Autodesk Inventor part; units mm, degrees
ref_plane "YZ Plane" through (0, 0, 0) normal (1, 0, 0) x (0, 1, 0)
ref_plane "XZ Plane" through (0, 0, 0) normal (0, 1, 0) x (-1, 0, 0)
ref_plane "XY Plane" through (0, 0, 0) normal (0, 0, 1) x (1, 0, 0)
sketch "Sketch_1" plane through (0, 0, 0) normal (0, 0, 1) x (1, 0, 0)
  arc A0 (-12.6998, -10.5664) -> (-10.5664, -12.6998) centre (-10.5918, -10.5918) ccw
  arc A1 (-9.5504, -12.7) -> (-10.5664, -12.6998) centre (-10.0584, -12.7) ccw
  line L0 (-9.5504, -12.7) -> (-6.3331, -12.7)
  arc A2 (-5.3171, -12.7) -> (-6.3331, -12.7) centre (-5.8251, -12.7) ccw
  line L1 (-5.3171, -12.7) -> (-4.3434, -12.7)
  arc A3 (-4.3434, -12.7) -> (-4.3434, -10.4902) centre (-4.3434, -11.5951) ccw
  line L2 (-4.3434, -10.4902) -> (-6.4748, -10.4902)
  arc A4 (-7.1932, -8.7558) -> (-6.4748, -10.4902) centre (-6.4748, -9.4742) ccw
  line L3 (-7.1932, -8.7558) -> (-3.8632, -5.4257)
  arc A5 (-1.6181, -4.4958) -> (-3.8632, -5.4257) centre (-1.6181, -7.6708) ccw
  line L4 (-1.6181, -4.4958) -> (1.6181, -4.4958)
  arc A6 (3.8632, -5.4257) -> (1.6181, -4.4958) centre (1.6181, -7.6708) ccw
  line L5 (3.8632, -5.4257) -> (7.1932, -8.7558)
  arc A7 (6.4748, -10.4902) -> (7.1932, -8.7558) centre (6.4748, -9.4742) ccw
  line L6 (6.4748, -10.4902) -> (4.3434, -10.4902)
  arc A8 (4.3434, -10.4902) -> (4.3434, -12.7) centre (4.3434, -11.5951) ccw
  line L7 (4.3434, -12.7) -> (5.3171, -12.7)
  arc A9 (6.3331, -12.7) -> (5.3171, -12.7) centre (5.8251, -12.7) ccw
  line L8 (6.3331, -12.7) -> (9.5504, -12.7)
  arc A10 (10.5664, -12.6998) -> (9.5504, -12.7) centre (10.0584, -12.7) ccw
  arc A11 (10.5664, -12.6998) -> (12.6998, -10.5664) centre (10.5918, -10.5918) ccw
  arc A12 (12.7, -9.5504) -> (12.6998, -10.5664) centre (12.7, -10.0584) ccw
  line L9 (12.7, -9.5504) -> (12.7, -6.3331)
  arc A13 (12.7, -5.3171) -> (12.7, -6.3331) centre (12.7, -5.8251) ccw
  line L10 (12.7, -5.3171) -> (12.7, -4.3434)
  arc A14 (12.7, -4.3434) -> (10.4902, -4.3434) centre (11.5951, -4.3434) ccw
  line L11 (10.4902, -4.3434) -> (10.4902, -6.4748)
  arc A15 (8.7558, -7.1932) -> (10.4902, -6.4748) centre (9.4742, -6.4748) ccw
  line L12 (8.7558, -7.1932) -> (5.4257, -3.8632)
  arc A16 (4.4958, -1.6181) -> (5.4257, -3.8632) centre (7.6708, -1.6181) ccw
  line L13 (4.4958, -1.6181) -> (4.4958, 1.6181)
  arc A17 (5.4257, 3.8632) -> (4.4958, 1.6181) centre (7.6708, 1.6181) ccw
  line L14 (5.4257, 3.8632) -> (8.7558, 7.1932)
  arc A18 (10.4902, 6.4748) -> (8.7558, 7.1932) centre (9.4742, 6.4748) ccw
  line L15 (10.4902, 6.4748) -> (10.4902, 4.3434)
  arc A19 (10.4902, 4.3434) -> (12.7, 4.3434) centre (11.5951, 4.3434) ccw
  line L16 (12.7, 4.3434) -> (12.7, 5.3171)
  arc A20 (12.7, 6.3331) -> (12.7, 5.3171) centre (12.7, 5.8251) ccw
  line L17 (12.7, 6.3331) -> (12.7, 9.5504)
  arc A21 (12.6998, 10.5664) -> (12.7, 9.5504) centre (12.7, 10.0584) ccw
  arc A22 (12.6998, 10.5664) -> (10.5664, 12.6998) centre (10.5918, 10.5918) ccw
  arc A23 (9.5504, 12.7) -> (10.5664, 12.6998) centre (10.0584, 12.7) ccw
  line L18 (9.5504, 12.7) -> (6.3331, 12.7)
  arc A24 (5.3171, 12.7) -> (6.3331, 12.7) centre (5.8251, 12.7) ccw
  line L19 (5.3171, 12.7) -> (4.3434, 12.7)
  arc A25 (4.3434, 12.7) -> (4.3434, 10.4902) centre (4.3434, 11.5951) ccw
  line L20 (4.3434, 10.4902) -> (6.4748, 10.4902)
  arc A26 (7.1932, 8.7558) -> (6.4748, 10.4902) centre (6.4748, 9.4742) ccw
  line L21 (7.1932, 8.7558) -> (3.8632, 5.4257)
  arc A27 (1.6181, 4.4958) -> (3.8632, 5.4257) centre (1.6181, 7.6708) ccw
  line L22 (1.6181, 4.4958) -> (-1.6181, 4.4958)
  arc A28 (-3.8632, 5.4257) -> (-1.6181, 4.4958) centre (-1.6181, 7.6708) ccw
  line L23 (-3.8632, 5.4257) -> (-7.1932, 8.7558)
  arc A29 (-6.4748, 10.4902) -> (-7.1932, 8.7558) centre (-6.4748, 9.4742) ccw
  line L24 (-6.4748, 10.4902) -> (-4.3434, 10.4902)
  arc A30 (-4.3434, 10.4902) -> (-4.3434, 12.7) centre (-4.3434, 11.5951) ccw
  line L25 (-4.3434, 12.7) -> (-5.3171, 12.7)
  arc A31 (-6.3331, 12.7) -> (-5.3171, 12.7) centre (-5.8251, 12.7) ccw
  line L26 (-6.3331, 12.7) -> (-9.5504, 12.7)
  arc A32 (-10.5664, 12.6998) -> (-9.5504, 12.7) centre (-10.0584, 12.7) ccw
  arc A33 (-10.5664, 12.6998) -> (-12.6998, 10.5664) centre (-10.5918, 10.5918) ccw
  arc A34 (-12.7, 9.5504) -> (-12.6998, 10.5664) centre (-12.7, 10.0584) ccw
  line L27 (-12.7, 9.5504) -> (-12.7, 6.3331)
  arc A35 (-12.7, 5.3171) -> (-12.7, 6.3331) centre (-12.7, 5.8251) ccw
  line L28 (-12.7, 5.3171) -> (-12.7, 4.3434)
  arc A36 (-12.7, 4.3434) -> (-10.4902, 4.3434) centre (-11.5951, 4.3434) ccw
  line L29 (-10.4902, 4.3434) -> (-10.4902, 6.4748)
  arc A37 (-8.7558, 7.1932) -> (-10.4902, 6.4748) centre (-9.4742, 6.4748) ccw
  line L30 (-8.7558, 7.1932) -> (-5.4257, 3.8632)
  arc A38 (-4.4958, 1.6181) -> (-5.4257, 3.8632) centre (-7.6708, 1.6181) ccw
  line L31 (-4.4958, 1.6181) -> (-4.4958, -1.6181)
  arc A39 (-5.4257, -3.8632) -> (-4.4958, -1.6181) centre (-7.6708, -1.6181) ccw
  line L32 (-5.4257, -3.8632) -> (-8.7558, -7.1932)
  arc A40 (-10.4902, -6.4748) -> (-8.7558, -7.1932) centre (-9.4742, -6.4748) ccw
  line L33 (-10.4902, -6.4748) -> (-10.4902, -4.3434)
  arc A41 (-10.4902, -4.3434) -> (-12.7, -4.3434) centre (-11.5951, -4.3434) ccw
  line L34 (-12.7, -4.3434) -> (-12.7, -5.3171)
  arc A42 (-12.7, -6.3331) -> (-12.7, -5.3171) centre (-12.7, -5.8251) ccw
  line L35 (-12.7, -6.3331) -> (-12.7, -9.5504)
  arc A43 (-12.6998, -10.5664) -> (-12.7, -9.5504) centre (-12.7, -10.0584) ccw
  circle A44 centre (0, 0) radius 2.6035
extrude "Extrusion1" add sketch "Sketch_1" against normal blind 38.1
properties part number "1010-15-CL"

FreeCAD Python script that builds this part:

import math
import FreeCAD as App
import Part
import Sketcher
Q = App.Units.Quantity

doc = App.newDocument("Part")
body = doc.addObject("PartDesign::Body", "Body")

sketch1 = body.newObject("Sketcher::SketchObject", "Sketch")
sketch1.AttachmentSupport = (doc.getObject("XY_Plane"), [""])
sketch1.MapMode = "FlatFace"
sketch1.addGeometry([
    Part.ArcOfCircle(Part.Circle(App.Vector(-12.7, -10.1, 0), App.Vector(0, 0, 1), 0.5), math.radians(-90), math.radians(90)),
    Part.ArcOfCircle(Part.Circle(App.Vector(-10.6, -10.6, 0), App.Vector(0, 0, 1), 2.1), math.radians(179), math.radians(271)),
    Part.ArcOfCircle(Part.Circle(App.Vector(-10.1, -12.7, 0), App.Vector(0, 0, 1), 0.5), math.radians(0), math.radians(180)),
    Part.LineSegment(App.Vector(-9.6, -12.7, 0), App.Vector(-6.3, -12.7, 0)),
    Part.ArcOfCircle(Part.Circle(App.Vector(-5.8, -12.7, 0), App.Vector(0, 0, 1), 0.5), math.radians(0), math.radians(180)),
    Part.LineSegment(App.Vector(-5.3, -12.7, 0), App.Vector(-4.3, -12.7, 0)),
    Part.ArcOfCircle(Part.Circle(App.Vector(-4.3, -11.6, 0), App.Vector(0, 0, 1), 1.1), math.radians(-90), math.radians(90)),
    Part.LineSegment(App.Vector(-4.3, -10.5, 0), App.Vector(-6.5, -10.5, 0)),
    Part.ArcOfCircle(Part.Circle(App.Vector(-6.5, -9.5, 0), App.Vector(0, 0, 1), 1), math.radians(135), math.radians(270)),
    Part.LineSegment(App.Vector(-7.2, -8.8, 0), App.Vector(-3.9, -5.4, 0)),
    Part.ArcOfCircle(Part.Circle(App.Vector(-1.6, -7.7, 0), App.Vector(0, 0, 1), 3.2), math.radians(90), math.radians(135)),
    Part.LineSegment(App.Vector(-1.6, -4.5, 0), App.Vector(1.6, -4.5, 0)),
    Part.ArcOfCircle(Part.Circle(App.Vector(1.6, -7.7, 0), App.Vector(0, 0, 1), 3.2), math.radians(45), math.radians(90)),
    Part.LineSegment(App.Vector(3.9, -5.4, 0), App.Vector(7.2, -8.8, 0)),
    Part.ArcOfCircle(Part.Circle(App.Vector(6.5, -9.5, 0), App.Vector(0, 0, 1), 1), math.radians(-90), math.radians(45)),
    Part.LineSegment(App.Vector(6.5, -10.5, 0), App.Vector(4.3, -10.5, 0)),
    Part.ArcOfCircle(Part.Circle(App.Vector(4.3, -11.6, 0), App.Vector(0, 0, 1), 1.1), math.radians(90), math.radians(270)),
    Part.LineSegment(App.Vector(4.3, -12.7, 0), App.Vector(5.3, -12.7, 0)),
    Part.ArcOfCircle(Part.Circle(App.Vector(5.8, -12.7, 0), App.Vector(0, 0, 1), 0.5), math.radians(0), math.radians(180)),
    Part.LineSegment(App.Vector(6.3, -12.7, 0), App.Vector(9.6, -12.7, 0)),
    Part.ArcOfCircle(Part.Circle(App.Vector(10.1, -12.7, 0), App.Vector(0, 0, 1), 0.5), math.radians(0), math.radians(180)),
    Part.ArcOfCircle(Part.Circle(App.Vector(10.6, -10.6, 0), App.Vector(0, 0, 1), 2.1), math.radians(-91), math.radians(1)),
    Part.ArcOfCircle(Part.Circle(App.Vector(12.7, -10.1, 0), App.Vector(0, 0, 1), 0.5), math.radians(90), math.radians(270)),
    Part.LineSegment(App.Vector(12.7, -9.6, 0), App.Vector(12.7, -6.3, 0)),
    Part.ArcOfCircle(Part.Circle(App.Vector(12.7, -5.8, 0), App.Vector(0, 0, 1), 0.5), math.radians(90), math.radians(270)),
    Part.LineSegment(App.Vector(12.7, -5.3, 0), App.Vector(12.7, -4.3, 0)),
    Part.ArcOfCircle(Part.Circle(App.Vector(11.6, -4.3, 0), App.Vector(0, 0, 1), 1.1), math.radians(0), math.radians(180)),
    Part.LineSegment(App.Vector(10.5, -4.3, 0), App.Vector(10.5, -6.5, 0)),
    Part.ArcOfCircle(Part.Circle(App.Vector(9.5, -6.5, 0), App.Vector(0, 0, 1), 1), math.radians(-135), math.radians(0)),
    Part.LineSegment(App.Vector(8.8, -7.2, 0), App.Vector(5.4, -3.9, 0)),
    Part.ArcOfCircle(Part.Circle(App.Vector(7.7, -1.6, 0), App.Vector(0, 0, 1), 3.2), math.radians(180), math.radians(225)),
    Part.LineSegment(App.Vector(4.5, -1.6, 0), App.Vector(4.5, 1.6, 0)),
    Part.ArcOfCircle(Part.Circle(App.Vector(7.7, 1.6, 0), App.Vector(0, 0, 1), 3.2), math.radians(135), math.radians(180)),
    Part.LineSegment(App.Vector(5.4, 3.9, 0), App.Vector(8.8, 7.2, 0)),
    Part.ArcOfCircle(Part.Circle(App.Vector(9.5, 6.5, 0), App.Vector(0, 0, 1), 1), math.radians(0), math.radians(135)),
    Part.LineSegment(App.Vector(10.5, 6.5, 0), App.Vector(10.5, 4.3, 0)),
    Part.ArcOfCircle(Part.Circle(App.Vector(11.6, 4.3, 0), App.Vector(0, 0, 1), 1.1), math.radians(180), math.radians(360)),
    Part.LineSegment(App.Vector(12.7, 4.3, 0), App.Vector(12.7, 5.3, 0)),
    Part.ArcOfCircle(Part.Circle(App.Vector(12.7, 5.8, 0), App.Vector(0, 0, 1), 0.5), math.radians(90), math.radians(270)),
    Part.LineSegment(App.Vector(12.7, 6.3, 0), App.Vector(12.7, 9.6, 0)),
    Part.ArcOfCircle(Part.Circle(App.Vector(12.7, 10.1, 0), App.Vector(0, 0, 1), 0.5), math.radians(90), math.radians(270)),
    Part.ArcOfCircle(Part.Circle(App.Vector(10.6, 10.6, 0), App.Vector(0, 0, 1), 2.1), math.radians(-1), math.radians(91)),
    Part.ArcOfCircle(Part.Circle(App.Vector(10.1, 12.7, 0), App.Vector(0, 0, 1), 0.5), math.radians(180), math.radians(360)),
    Part.LineSegment(App.Vector(9.6, 12.7, 0), App.Vector(6.3, 12.7, 0)),
    Part.ArcOfCircle(Part.Circle(App.Vector(5.8, 12.7, 0), App.Vector(0, 0, 1), 0.5), math.radians(180), math.radians(360)),
    Part.LineSegment(App.Vector(5.3, 12.7, 0), App.Vector(4.3, 12.7, 0)),
    Part.ArcOfCircle(Part.Circle(App.Vector(4.3, 11.6, 0), App.Vector(0, 0, 1), 1.1), math.radians(90), math.radians(270)),
    Part.LineSegment(App.Vector(4.3, 10.5, 0), App.Vector(6.5, 10.5, 0)),
    Part.ArcOfCircle(Part.Circle(App.Vector(6.5, 9.5, 0), App.Vector(0, 0, 1), 1), math.radians(-45), math.radians(90)),
    Part.LineSegment(App.Vector(7.2, 8.8, 0), App.Vector(3.9, 5.4, 0)),
    Part.ArcOfCircle(Part.Circle(App.Vector(1.6, 7.7, 0), App.Vector(0, 0, 1), 3.2), math.radians(-90), math.radians(-45)),
    Part.LineSegment(App.Vector(1.6, 4.5, 0), App.Vector(-1.6, 4.5, 0)),
    Part.ArcOfCircle(Part.Circle(App.Vector(-1.6, 7.7, 0), App.Vector(0, 0, 1), 3.2), math.radians(-135), math.radians(-90)),
    Part.LineSegment(App.Vector(-3.9, 5.4, 0), App.Vector(-7.2, 8.8, 0)),
    Part.ArcOfCircle(Part.Circle(App.Vector(-6.5, 9.5, 0), App.Vector(0, 0, 1), 1), math.radians(90), math.radians(225)),
    Part.LineSegment(App.Vector(-6.5, 10.5, 0), App.Vector(-4.3, 10.5, 0)),
    Part.ArcOfCircle(Part.Circle(App.Vector(-4.3, 11.6, 0), App.Vector(0, 0, 1), 1.1), math.radians(-90), math.radians(90)),
    Part.LineSegment(App.Vector(-4.3, 12.7, 0), App.Vector(-5.3, 12.7, 0)),
    Part.ArcOfCircle(Part.Circle(App.Vector(-5.8, 12.7, 0), App.Vector(0, 0, 1), 0.5), math.radians(180), math.radians(360)),
    Part.LineSegment(App.Vector(-6.3, 12.7, 0), App.Vector(-9.6, 12.7, 0)),
    Part.ArcOfCircle(Part.Circle(App.Vector(-10.1, 12.7, 0), App.Vector(0, 0, 1), 0.5), math.radians(-180), math.radians(0)),
    Part.ArcOfCircle(Part.Circle(App.Vector(-10.6, 10.6, 0), App.Vector(0, 0, 1), 2.1), math.radians(89), math.radians(181)),
    Part.ArcOfCircle(Part.Circle(App.Vector(-12.7, 10.1, 0), App.Vector(0, 0, 1), 0.5), math.radians(-90), math.radians(90)),
    Part.LineSegment(App.Vector(-12.7, 9.6, 0), App.Vector(-12.7, 6.3, 0)),
    Part.ArcOfCircle(Part.Circle(App.Vector(-12.7, 5.8, 0), App.Vector(0, 0, 1), 0.5), math.radians(-90), math.radians(90)),
    Part.LineSegment(App.Vector(-12.7, 5.3, 0), App.Vector(-12.7, 4.3, 0)),
    Part.ArcOfCircle(Part.Circle(App.Vector(-11.6, 4.3, 0), App.Vector(0, 0, 1), 1.1), math.radians(180), math.radians(360)),
    Part.LineSegment(App.Vector(-10.5, 4.3, 0), App.Vector(-10.5, 6.5, 0)),
    Part.ArcOfCircle(Part.Circle(App.Vector(-9.5, 6.5, 0), App.Vector(0, 0, 1), 1), math.radians(45), math.radians(180)),
    Part.LineSegment(App.Vector(-8.8, 7.2, 0), App.Vector(-5.4, 3.9, 0)),
    Part.ArcOfCircle(Part.Circle(App.Vector(-7.7, 1.6, 0), App.Vector(0, 0, 1), 3.2), math.radians(0), math.radians(45)),
    Part.LineSegment(App.Vector(-4.5, 1.6, 0), App.Vector(-4.5, -1.6, 0)),
    Part.ArcOfCircle(Part.Circle(App.Vector(-7.7, -1.6, 0), App.Vector(0, 0, 1), 3.2), math.radians(-45), math.radians(0)),
    Part.LineSegment(App.Vector(-5.4, -3.9, 0), App.Vector(-8.8, -7.2, 0)),
    Part.ArcOfCircle(Part.Circle(App.Vector(-9.5, -6.5, 0), App.Vector(0, 0, 1), 1), math.radians(180), math.radians(315)),
    Part.LineSegment(App.Vector(-10.5, -6.5, 0), App.Vector(-10.5, -4.3, 0)),
    Part.ArcOfCircle(Part.Circle(App.Vector(-11.6, -4.3, 0), App.Vector(0, 0, 1), 1.1), math.radians(0), math.radians(180)),
    Part.LineSegment(App.Vector(-12.7, -4.3, 0), App.Vector(-12.7, -5.3, 0)),
    Part.ArcOfCircle(Part.Circle(App.Vector(-12.7, -5.8, 0), App.Vector(0, 0, 1), 0.5), math.radians(-90), math.radians(90)),
    Part.LineSegment(App.Vector(-12.7, -6.3, 0), App.Vector(-12.7, -9.6, 0)),
    Part.Circle(App.Vector(0, 0, 0), App.Vector(0, 0, 1), 2.6),
], False)
sketch1.addConstraint([
    Sketcher.Constraint("Coincident", 0, 1, 1, 1),
    Sketcher.Constraint("Coincident", 1, 2, 2, 2),
    Sketcher.Constraint("Coincident", 2, 1, 3, 1),
    Sketcher.Constraint("Coincident", 3, 2, 4, 2),
    Sketcher.Constraint("Coincident", 4, 1, 5, 1),
    Sketcher.Constraint("Tangent", 5, 2, 6, 1),
    Sketcher.Constraint("Tangent", 6, 2, 7, 1),
    Sketcher.Constraint("Tangent", 7, 2, 8, 2),
    Sketcher.Constraint("Tangent", 8, 1, 9, 1),
    Sketcher.Constraint("Tangent", 9, 2, 10, 2),
    Sketcher.Constraint("Tangent", 10, 1, 11, 1),
    Sketcher.Constraint("Tangent", 11, 2, 12, 2),
    Sketcher.Constraint("Tangent", 12, 1, 13, 1),
    Sketcher.Constraint("Tangent", 13, 2, 14, 2),
    Sketcher.Constraint("Tangent", 14, 1, 15, 1),
    Sketcher.Constraint("Tangent", 15, 2, 16, 1),
    Sketcher.Constraint("Tangent", 16, 2, 17, 1),
    Sketcher.Constraint("Coincident", 17, 2, 18, 2),
    Sketcher.Constraint("Coincident", 18, 1, 19, 1),
    Sketcher.Constraint("Coincident", 19, 2, 20, 2),
    Sketcher.Constraint("Coincident", 20, 1, 21, 1),
    Sketcher.Constraint("Coincident", 21, 2, 22, 2),
    Sketcher.Constraint("Coincident", 22, 1, 23, 1),
    Sketcher.Constraint("Coincident", 23, 2, 24, 2),
    Sketcher.Constraint("Coincident", 24, 1, 25, 1),
    Sketcher.Constraint("Tangent", 25, 2, 26, 1),
    Sketcher.Constraint("Tangent", 26, 2, 27, 1),
    Sketcher.Constraint("Tangent", 27, 2, 28, 2),
    Sketcher.Constraint("Tangent", 28, 1, 29, 1),
    Sketcher.Constraint("Tangent", 29, 2, 30, 2),
    Sketcher.Constraint("Tangent", 30, 1, 31, 1),
    Sketcher.Constraint("Tangent", 31, 2, 32, 2),
    Sketcher.Constraint("Tangent", 32, 1, 33, 1),
    Sketcher.Constraint("Tangent", 33, 2, 34, 2),
    Sketcher.Constraint("Tangent", 34, 1, 35, 1),
    Sketcher.Constraint("Tangent", 35, 2, 36, 1),
    Sketcher.Constraint("Tangent", 36, 2, 37, 1),
    Sketcher.Constraint("Coincident", 37, 2, 38, 2),
    Sketcher.Constraint("Coincident", 38, 1, 39, 1),
    Sketcher.Constraint("Coincident", 39, 2, 40, 2),
    Sketcher.Constraint("Coincident", 40, 1, 41, 1),
    Sketcher.Constraint("Coincident", 41, 2, 42, 2),
    Sketcher.Constraint("Coincident", 42, 1, 43, 1),
    Sketcher.Constraint("Coincident", 43, 2, 44, 2),
    Sketcher.Constraint("Coincident", 44, 1, 45, 1),
    Sketcher.Constraint("Tangent", 45, 2, 46, 1),
    Sketcher.Constraint("Tangent", 46, 2, 47, 1),
    Sketcher.Constraint("Tangent", 47, 2, 48, 2),
    Sketcher.Constraint("Tangent", 48, 1, 49, 1),
    Sketcher.Constraint("Tangent", 49, 2, 50, 2),
    Sketcher.Constraint("Tangent", 50, 1, 51, 1),
    Sketcher.Constraint("Tangent", 51, 2, 52, 2),
    Sketcher.Constraint("Tangent", 52, 1, 53, 1),
    Sketcher.Constraint("Tangent", 53, 2, 54, 2),
    Sketcher.Constraint("Tangent", 54, 1, 55, 1),
    Sketcher.Constraint("Tangent", 55, 2, 56, 1),
    Sketcher.Constraint("Tangent", 56, 2, 57, 1),
    Sketcher.Constraint("Coincident", 57, 2, 58, 2),
    Sketcher.Constraint("Coincident", 58, 1, 59, 1),
    Sketcher.Constraint("Coincident", 59, 2, 60, 2),
    Sketcher.Constraint("Coincident", 60, 1, 61, 1),
    Sketcher.Constraint("Coincident", 61, 2, 62, 2),
    Sketcher.Constraint("Coincident", 62, 1, 63, 1),
    Sketcher.Constraint("Coincident", 63, 2, 64, 2),
    Sketcher.Constraint("Coincident", 64, 1, 65, 1),
    Sketcher.Constraint("Tangent", 65, 2, 66, 1),
    Sketcher.Constraint("Tangent", 66, 2, 67, 1),
    Sketcher.Constraint("Tangent", 67, 2, 68, 2),
    Sketcher.Constraint("Tangent", 68, 1, 69, 1),
    Sketcher.Constraint("Tangent", 69, 2, 70, 2),
    Sketcher.Constraint("Tangent", 70, 1, 71, 1),
    Sketcher.Constraint("Tangent", 71, 2, 72, 2),
    Sketcher.Constraint("Tangent", 72, 1, 73, 1),
    Sketcher.Constraint("Tangent", 73, 2, 74, 2),
    Sketcher.Constraint("Tangent", 74, 1, 75, 1),
    Sketcher.Constraint("Tangent", 75, 2, 76, 1),
    Sketcher.Constraint("Tangent", 76, 2, 77, 1),
    Sketcher.Constraint("Coincident", 77, 2, 78, 2),
    Sketcher.Constraint("Coincident", 78, 1, 79, 1),
    Sketcher.Constraint("Coincident", 79, 2, 0, 2),
    Sketcher.Constraint("Horizontal", 3),
    Sketcher.Constraint("Horizontal", 5),
    Sketcher.Constraint("Horizontal", 7),
    Sketcher.Constraint("Horizontal", 11),
    Sketcher.Constraint("Horizontal", 15),
    Sketcher.Constraint("Horizontal", 17),
    Sketcher.Constraint("Horizontal", 19),
    Sketcher.Constraint("Vertical", 23),
    Sketcher.Constraint("Vertical", 25),
    Sketcher.Constraint("Vertical", 27),
    Sketcher.Constraint("Vertical", 31),
    Sketcher.Constraint("Vertical", 35),
    Sketcher.Constraint("Vertical", 37),
    Sketcher.Constraint("Vertical", 39),
    Sketcher.Constraint("Horizontal", 43),
    Sketcher.Constraint("Horizontal", 45),
    Sketcher.Constraint("Horizontal", 47),
    Sketcher.Constraint("Horizontal", 51),
    Sketcher.Constraint("Horizontal", 55),
    Sketcher.Constraint("Horizontal", 57),
    Sketcher.Constraint("Horizontal", 59),
    Sketcher.Constraint("Vertical", 63),
    Sketcher.Constraint("Vertical", 65),
    Sketcher.Constraint("Vertical", 67),
    Sketcher.Constraint("Vertical", 71),
    Sketcher.Constraint("Vertical", 75),
    Sketcher.Constraint("Vertical", 77),
    Sketcher.Constraint("Vertical", 79),
    Sketcher.Constraint("Coincident", 80, 3, -1, 1),
    Sketcher.Constraint("Equal", 0, 2),
    Sketcher.Constraint("Equal", 2, 4),
    Sketcher.Constraint("Equal", 10, 12),
    Sketcher.Constraint("Equal", 8, 14),
    Sketcher.Constraint("Equal", 6, 16),
    Sketcher.Constraint("Equal", 4, 18),
    Sketcher.Constraint("Equal", 18, 20),
    Sketcher.Constraint("Equal", 1, 21),
    Sketcher.Constraint("Equal", 20, 22),
    Sketcher.Constraint("Equal", 22, 24),
    Sketcher.Constraint("Equal", 16, 26),
    Sketcher.Constraint("Equal", 14, 28),
    Sketcher.Constraint("Equal", 12, 30),
    Sketcher.Constraint("Equal", 30, 32),
    Sketcher.Constraint("Equal", 28, 34),
    Sketcher.Constraint("Equal", 26, 36),
    Sketcher.Constraint("Equal", 24, 38),
    Sketcher.Constraint("Equal", 38, 40),
    Sketcher.Constraint("Equal", 21, 41),
    Sketcher.Constraint("Equal", 40, 42),
    Sketcher.Constraint("Equal", 42, 44),
    Sketcher.Constraint("Equal", 36, 46),
    Sketcher.Constraint("Equal", 34, 48),
    Sketcher.Constraint("Equal", 32, 50),
    Sketcher.Constraint("Equal", 50, 52),
    Sketcher.Constraint("Equal", 48, 54),
    Sketcher.Constraint("Equal", 46, 56),
    Sketcher.Constraint("Equal", 44, 58),
    Sketcher.Constraint("Equal", 58, 60),
    Sketcher.Constraint("Equal", 41, 61),
    Sketcher.Constraint("Equal", 60, 62),
    Sketcher.Constraint("Equal", 62, 64),
    Sketcher.Constraint("Equal", 56, 66),
    Sketcher.Constraint("Equal", 54, 68),
    Sketcher.Constraint("Equal", 52, 70),
    Sketcher.Constraint("Equal", 70, 72),
    Sketcher.Constraint("Equal", 68, 74),
    Sketcher.Constraint("Equal", 66, 76),
    Sketcher.Constraint("Equal", 64, 78),
    Sketcher.Constraint("Symmetric", 0, 3, 40, 3, -1, 1),
    Sketcher.Constraint("Symmetric", 1, 3, 41, 3, -1, 1),
    Sketcher.Constraint("Symmetric", 2, 3, 42, 3, -1, 1),
    Sketcher.Constraint("Symmetric", 4, 3, 44, 3, -1, 1),
    Sketcher.Constraint("Symmetric", 6, 3, 46, 3, -1, 1),
    Sketcher.Constraint("Symmetric", 10, 3, 50, 3, -1, 1),
    Sketcher.Constraint("Symmetric", 14, 3, 54, 3, -1, 1),
    Sketcher.Constraint("Symmetric", 18, 3, 58, 3, -1, 1),
    Sketcher.Constraint("Symmetric", 20, 3, 60, 3, -1, 1),
    Sketcher.Constraint("Symmetric", 21, 3, 61, 3, -1, 1),
    Sketcher.Constraint("Symmetric", 22, 3, 62, 3, -1, 1),
    Sketcher.Constraint("Symmetric", 24, 3, 64, 3, -1, 1),
    Sketcher.Constraint("Symmetric", 26, 3, 66, 3, -1, 1),
    Sketcher.Constraint("Symmetric", 30, 3, 70, 3, -1, 1),
    Sketcher.Constraint("Symmetric", 34, 3, 74, 3, -1, 1),
    Sketcher.Constraint("Symmetric", 38, 3, 78, 3, -1, 1),
    Sketcher.Constraint("Symmetric", 8, 3, 14, 3, -2),
    Sketcher.Constraint("Symmetric", 4, 3, 18, 3, -2),
    Sketcher.Constraint("Symmetric", 2, 3, 20, 3, -2),
    Sketcher.Constraint("Symmetric", 1, 3, 21, 3, -2),
    Sketcher.Constraint("Symmetric", 0, 3, 22, 3, -2),
    Sketcher.Constraint("Symmetric", 38, 3, 64, 3, -2),
    Sketcher.Constraint("Symmetric", 36, 3, 66, 3, -2),
    Sketcher.Constraint("Symmetric", 49, 2, 52, 1, -2),
    Sketcher.Constraint("Symmetric", 33, 2, 68, 1, -2),
    Sketcher.Constraint("Symmetric", 29, 2, 72, 1, -2),
    Sketcher.Constraint("Perpendicular", 9, 13),
    Sketcher.Constraint("Parallel", 13, 29),
    Sketcher.Constraint("Perpendicular", 29, 33),
    Sketcher.Constraint("Horizontal", 2, 3, 4, 3),
    Sketcher.Constraint("Horizontal", 26, 3, 76, 3),
    Sketcher.Constraint("Horizontal", 20, 3, 1, 2),
    Sketcher.Constraint("Horizontal", 1, 2, 2, 1),
    Sketcher.Constraint("Horizontal", 3, 2, 4, 1),
    Sketcher.Constraint("Horizontal", 17, 2, 18, 1),
    Sketcher.Constraint("Horizontal", 41, 2, 42, 1),
    Sketcher.Constraint("Horizontal", 57, 2, 58, 1),
    Sketcher.Constraint("Vertical", 22, 3, 24, 3),
    Sketcher.Constraint("Vertical", 16, 3, 46, 3),
    Sketcher.Constraint("Vertical", 6, 3, 56, 3),
    Sketcher.Constraint("Vertical", 78, 3, 0, 1),
    Sketcher.Constraint("Vertical", 21, 2, 22, 1),
    Sketcher.Constraint("Vertical", 23, 2, 24, 1),
    Sketcher.Constraint("Vertical", 37, 2, 38, 1),
    Sketcher.Constraint("Vertical", 61, 2, 62, 1),
    Sketcher.Constraint("Vertical", 77, 2, 78, 1),
    Sketcher.Constraint("Equal", 59, 23),
    Sketcher.Constraint("Equal", 57, 25),
    Sketcher.Constraint("Equal", 55, 27),
    Sketcher.Constraint("Equal", 51, 31),
    Sketcher.Constraint("Equal", 13, 29),
    Sketcher.Constraint("Radius", 0, Q("0.02 in")),
    Sketcher.Constraint("Radius", 8, Q("0.04 in")),
    Sketcher.Constraint("Diameter", 80, Q("0.205 in")),
    Sketcher.Constraint("Radius", 1, Q("0.083 in")),
    Sketcher.Constraint("Radius", 10, Q("0.125 in")),
    Sketcher.Constraint("DistanceX", 0, 3, -1, 1, Q("0.5 in")),
    Sketcher.Constraint("DistanceY", 2, 3, -1, 1, Q("0.5 in")),
    Sketcher.Constraint("Radius", 6, Q("0.0435 in")),
    Sketcher.Constraint("DistanceX", 11, 1, 11, 2, Q("0.1274 in")),
    Sketcher.Constraint("DistanceY", 0, 3, -1, 1, Q("0.396 in")),
    Sketcher.Constraint("DistanceX", 6, 3, -1, 1, Q("0.171 in")),
    Sketcher.Constraint("DistanceY", 10, 3, -1, 1, Q("0.302 in")),
    Sketcher.Constraint("DistanceX", 3, 1, 3, 2, Q("3.2173 mm")),
])
pad1 = body.newObject("PartDesign::Pad", "Pad")
pad1.Profile = sketch1
pad1.Length = Q("1.5 in")
pad1.Reversed = True

doc.recompute()
